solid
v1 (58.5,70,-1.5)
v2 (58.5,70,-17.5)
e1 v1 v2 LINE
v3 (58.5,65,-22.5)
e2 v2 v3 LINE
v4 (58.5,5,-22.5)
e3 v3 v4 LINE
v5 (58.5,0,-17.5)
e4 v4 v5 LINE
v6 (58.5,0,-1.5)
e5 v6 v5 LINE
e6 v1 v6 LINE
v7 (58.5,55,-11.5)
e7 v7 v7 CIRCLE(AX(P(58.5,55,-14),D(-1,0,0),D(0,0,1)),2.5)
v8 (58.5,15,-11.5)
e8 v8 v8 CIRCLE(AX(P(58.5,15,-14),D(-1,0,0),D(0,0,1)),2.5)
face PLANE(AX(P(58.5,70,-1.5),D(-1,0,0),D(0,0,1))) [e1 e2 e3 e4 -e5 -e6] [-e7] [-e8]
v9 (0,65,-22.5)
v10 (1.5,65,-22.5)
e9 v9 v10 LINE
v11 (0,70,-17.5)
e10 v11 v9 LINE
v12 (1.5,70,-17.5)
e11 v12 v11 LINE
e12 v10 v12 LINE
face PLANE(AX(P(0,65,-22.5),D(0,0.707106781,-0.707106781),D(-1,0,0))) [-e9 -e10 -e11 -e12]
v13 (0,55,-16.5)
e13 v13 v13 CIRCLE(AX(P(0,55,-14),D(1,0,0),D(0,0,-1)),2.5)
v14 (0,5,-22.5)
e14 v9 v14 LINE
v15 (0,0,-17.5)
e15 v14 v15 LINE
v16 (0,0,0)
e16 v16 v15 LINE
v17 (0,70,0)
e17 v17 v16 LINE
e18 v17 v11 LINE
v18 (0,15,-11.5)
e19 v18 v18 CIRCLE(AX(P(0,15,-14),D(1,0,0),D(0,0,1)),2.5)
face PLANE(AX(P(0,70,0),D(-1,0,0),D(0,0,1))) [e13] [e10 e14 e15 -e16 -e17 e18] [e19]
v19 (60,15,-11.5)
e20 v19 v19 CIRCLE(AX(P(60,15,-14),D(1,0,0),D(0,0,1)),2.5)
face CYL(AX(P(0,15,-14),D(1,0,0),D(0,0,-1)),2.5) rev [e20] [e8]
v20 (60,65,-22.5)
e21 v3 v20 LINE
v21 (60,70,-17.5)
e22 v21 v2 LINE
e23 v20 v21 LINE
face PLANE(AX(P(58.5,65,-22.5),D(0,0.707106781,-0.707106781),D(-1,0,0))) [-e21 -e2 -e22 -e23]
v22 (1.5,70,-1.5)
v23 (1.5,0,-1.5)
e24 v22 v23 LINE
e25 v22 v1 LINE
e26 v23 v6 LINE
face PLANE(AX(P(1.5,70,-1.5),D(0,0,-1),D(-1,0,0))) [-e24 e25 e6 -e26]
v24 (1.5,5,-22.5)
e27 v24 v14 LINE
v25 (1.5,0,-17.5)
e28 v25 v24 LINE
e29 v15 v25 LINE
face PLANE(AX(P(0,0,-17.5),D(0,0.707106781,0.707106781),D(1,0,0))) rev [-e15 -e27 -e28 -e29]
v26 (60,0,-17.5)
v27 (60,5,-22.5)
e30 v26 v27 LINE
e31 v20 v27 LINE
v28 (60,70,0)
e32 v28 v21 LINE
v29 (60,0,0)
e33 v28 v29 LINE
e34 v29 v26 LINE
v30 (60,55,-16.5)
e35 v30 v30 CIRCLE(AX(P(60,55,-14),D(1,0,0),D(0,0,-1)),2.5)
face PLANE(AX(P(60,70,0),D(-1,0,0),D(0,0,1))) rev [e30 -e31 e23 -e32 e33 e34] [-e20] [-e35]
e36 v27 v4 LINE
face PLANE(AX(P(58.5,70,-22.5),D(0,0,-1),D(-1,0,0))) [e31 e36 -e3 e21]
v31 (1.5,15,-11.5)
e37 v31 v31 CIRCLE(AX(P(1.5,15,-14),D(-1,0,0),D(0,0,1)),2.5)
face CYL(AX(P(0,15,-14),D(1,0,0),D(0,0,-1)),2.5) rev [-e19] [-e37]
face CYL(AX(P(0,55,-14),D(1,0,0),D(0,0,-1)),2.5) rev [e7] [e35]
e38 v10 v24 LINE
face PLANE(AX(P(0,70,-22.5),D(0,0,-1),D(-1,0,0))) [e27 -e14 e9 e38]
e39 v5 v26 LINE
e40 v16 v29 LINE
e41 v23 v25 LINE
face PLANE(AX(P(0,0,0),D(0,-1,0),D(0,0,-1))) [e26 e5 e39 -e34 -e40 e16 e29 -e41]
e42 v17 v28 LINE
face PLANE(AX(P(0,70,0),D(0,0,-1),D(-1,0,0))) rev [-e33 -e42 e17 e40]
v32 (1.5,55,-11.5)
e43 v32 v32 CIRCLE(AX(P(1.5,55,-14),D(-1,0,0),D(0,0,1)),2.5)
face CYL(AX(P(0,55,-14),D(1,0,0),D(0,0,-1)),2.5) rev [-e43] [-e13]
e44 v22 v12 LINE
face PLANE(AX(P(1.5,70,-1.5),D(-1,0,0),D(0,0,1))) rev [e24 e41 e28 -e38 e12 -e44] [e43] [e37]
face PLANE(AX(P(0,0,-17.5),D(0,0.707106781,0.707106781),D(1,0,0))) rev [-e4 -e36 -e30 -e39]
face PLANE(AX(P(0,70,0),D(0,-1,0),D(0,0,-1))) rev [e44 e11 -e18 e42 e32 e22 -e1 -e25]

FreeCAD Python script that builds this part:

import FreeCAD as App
import Part
import Sketcher


def edges_at(feature, points):
    """Names of the edges that pass closest to the given points."""
    edges = feature.Shape.Edges
    near = lambda p: min(range(len(edges)), key=lambda i: edges[i].distToShape(Part.Vertex(*p))[0])
    return sorted({f"Edge{near(p) + 1}" for p in points})


def add_polygon(sketch, points):
    """Adds a closed chain of lines whose ends are joined by coincident constraints."""
    first, n = sketch.GeometryCount, len(points)
    for a, b in zip(points, points[1:] + points[:1]):
        sketch.addGeometry(Part.LineSegment(App.Vector(*a, 0), App.Vector(*b, 0)), False)
    for i in range(n):
        sketch.addConstraint(Sketcher.Constraint("Coincident", first + i, 2, first + (i + 1) % n, 1))

doc = App.newDocument("Part")
params = doc.addObject("Spreadsheet::Sheet", "Params")
for row, (alias, value) in enumerate([
    ("sketch1_width", "60 mm"),
    ("sketch1_width2", "57 mm"),
    ("sketch1_height", "21 mm"),
    ("sketch1_height2", "22.5 mm"),
    ("pad1_length", "70 mm"),
    ("sketch2_diameter", "5 mm"),
    ("pocket1_length", "60 mm"),
    ("chamfer_size", "5 mm"),
], start=1):
    params.set(f"A{row}", alias)
    params.set(f"B{row}", "=" + value)
    params.setAlias(f"B{row}", alias)

body = doc.addObject("PartDesign::Body", "Body")

sketch1 = body.newObject("Sketcher::SketchObject", "Sketch")
sketch1.AttachmentSupport = (doc.getObject("XZ_Plane"), [""])
sketch1.MapMode = "FlatFace"
add_polygon(sketch1, [(0, 0), (60, 0), (60, -22.5), (58.5, -22.5), (58.5, -1.5), (1.5, -1.5), (1.5, -22.5), (0, -22.5)])
sketch1.addConstraint(Sketcher.Constraint("Horizontal", 0))
sketch1.addConstraint(Sketcher.Constraint("Vertical", 1))
sketch1.addConstraint(Sketcher.Constraint("Horizontal", 2))
sketch1.addConstraint(Sketcher.Constraint("Vertical", 3))
sketch1.addConstraint(Sketcher.Constraint("Horizontal", 4))
sketch1.addConstraint(Sketcher.Constraint("Vertical", 5))
sketch1.addConstraint(Sketcher.Constraint("Horizontal", 6))
sketch1.addConstraint(Sketcher.Constraint("Vertical", 7))
sketch1.addConstraint(Sketcher.Constraint("Coincident", 7, 2, -1, 1))
sketch1.addConstraint(Sketcher.Constraint("Horizontal", 2, 2, 5, 2))
sketch1.addConstraint(Sketcher.Constraint("Equal", 2, 6))
sketch1.addConstraint(Sketcher.Constraint("DistanceX", 0, 1, 0, 2, 60.0))
sketch1.addConstraint(Sketcher.Constraint("DistanceX", 4, 2, 4, 1, 57.0))
sketch1.addConstraint(Sketcher.Constraint("DistanceY", 3, 1, 3, 2, 21.0))
sketch1.addConstraint(Sketcher.Constraint("DistanceY", 1, 2, 1, 1, 22.5))
sketch1.setExpression("Constraints[19]", "Params.sketch1_width")
sketch1.setExpression("Constraints[20]", "Params.sketch1_width2")
sketch1.setExpression("Constraints[21]", "Params.sketch1_height")
sketch1.setExpression("Constraints[22]", "Params.sketch1_height2")
pad1 = body.newObject("PartDesign::Pad", "Pad")
pad1.Profile = sketch1
pad1.setExpression("Length", "Params.pad1_length")
pad1.Reversed = True

sketch2 = body.newObject("Sketcher::SketchObject", "Sketch001")
sketch2.AttachmentSupport = (doc.getObject("YZ_Plane"), [""])
sketch2.MapMode = "FlatFace"
sketch2.AttachmentOffset = App.Placement(App.Vector(0, 0, 60), App.Rotation())
sketch2.addGeometry(Part.Circle(App.Vector(55, -14, 0), App.Vector(0, 0, 1), 2.5), False)
sketch2.addGeometry(Part.Circle(App.Vector(15, -14, 0), App.Vector(0, 0, 1), 2.5), False)
sketch2.addConstraint(Sketcher.Constraint("Equal", 0, 1))
sketch2.addConstraint(Sketcher.Constraint("Horizontal", 0, 3, 1, 3))
sketch2.addConstraint(Sketcher.Constraint("Diameter", 0, 5.0))
sketch2.addConstraint(Sketcher.Constraint("DistanceX", -1, 1, 0, 3, 55.0))
sketch2.addConstraint(Sketcher.Constraint("DistanceY", 0, 3, -1, 1, 14.0))
sketch2.addConstraint(Sketcher.Constraint("DistanceX", -1, 1, 1, 3, 15.0))
sketch2.setExpression("Constraints[2]", "Params.sketch2_diameter")
pocket1 = body.newObject("PartDesign::Pocket", "Pocket")
pocket1.Profile = sketch2
pocket1.setExpression("Length", "Params.pocket1_length")
doc.recompute()

chamfer = body.newObject("PartDesign::Chamfer", "Chamfer")
chamfer.Base = (pocket1, edges_at(pocket1, [
    (0.75, 0, -22.5),
    (59.25, 70, -22.5),
    (0.75, 70, -22.5),
    (59.25, 0, -22.5),
]))
chamfer.setExpression("Size", "Params.chamfer_size")

doc.recompute()
